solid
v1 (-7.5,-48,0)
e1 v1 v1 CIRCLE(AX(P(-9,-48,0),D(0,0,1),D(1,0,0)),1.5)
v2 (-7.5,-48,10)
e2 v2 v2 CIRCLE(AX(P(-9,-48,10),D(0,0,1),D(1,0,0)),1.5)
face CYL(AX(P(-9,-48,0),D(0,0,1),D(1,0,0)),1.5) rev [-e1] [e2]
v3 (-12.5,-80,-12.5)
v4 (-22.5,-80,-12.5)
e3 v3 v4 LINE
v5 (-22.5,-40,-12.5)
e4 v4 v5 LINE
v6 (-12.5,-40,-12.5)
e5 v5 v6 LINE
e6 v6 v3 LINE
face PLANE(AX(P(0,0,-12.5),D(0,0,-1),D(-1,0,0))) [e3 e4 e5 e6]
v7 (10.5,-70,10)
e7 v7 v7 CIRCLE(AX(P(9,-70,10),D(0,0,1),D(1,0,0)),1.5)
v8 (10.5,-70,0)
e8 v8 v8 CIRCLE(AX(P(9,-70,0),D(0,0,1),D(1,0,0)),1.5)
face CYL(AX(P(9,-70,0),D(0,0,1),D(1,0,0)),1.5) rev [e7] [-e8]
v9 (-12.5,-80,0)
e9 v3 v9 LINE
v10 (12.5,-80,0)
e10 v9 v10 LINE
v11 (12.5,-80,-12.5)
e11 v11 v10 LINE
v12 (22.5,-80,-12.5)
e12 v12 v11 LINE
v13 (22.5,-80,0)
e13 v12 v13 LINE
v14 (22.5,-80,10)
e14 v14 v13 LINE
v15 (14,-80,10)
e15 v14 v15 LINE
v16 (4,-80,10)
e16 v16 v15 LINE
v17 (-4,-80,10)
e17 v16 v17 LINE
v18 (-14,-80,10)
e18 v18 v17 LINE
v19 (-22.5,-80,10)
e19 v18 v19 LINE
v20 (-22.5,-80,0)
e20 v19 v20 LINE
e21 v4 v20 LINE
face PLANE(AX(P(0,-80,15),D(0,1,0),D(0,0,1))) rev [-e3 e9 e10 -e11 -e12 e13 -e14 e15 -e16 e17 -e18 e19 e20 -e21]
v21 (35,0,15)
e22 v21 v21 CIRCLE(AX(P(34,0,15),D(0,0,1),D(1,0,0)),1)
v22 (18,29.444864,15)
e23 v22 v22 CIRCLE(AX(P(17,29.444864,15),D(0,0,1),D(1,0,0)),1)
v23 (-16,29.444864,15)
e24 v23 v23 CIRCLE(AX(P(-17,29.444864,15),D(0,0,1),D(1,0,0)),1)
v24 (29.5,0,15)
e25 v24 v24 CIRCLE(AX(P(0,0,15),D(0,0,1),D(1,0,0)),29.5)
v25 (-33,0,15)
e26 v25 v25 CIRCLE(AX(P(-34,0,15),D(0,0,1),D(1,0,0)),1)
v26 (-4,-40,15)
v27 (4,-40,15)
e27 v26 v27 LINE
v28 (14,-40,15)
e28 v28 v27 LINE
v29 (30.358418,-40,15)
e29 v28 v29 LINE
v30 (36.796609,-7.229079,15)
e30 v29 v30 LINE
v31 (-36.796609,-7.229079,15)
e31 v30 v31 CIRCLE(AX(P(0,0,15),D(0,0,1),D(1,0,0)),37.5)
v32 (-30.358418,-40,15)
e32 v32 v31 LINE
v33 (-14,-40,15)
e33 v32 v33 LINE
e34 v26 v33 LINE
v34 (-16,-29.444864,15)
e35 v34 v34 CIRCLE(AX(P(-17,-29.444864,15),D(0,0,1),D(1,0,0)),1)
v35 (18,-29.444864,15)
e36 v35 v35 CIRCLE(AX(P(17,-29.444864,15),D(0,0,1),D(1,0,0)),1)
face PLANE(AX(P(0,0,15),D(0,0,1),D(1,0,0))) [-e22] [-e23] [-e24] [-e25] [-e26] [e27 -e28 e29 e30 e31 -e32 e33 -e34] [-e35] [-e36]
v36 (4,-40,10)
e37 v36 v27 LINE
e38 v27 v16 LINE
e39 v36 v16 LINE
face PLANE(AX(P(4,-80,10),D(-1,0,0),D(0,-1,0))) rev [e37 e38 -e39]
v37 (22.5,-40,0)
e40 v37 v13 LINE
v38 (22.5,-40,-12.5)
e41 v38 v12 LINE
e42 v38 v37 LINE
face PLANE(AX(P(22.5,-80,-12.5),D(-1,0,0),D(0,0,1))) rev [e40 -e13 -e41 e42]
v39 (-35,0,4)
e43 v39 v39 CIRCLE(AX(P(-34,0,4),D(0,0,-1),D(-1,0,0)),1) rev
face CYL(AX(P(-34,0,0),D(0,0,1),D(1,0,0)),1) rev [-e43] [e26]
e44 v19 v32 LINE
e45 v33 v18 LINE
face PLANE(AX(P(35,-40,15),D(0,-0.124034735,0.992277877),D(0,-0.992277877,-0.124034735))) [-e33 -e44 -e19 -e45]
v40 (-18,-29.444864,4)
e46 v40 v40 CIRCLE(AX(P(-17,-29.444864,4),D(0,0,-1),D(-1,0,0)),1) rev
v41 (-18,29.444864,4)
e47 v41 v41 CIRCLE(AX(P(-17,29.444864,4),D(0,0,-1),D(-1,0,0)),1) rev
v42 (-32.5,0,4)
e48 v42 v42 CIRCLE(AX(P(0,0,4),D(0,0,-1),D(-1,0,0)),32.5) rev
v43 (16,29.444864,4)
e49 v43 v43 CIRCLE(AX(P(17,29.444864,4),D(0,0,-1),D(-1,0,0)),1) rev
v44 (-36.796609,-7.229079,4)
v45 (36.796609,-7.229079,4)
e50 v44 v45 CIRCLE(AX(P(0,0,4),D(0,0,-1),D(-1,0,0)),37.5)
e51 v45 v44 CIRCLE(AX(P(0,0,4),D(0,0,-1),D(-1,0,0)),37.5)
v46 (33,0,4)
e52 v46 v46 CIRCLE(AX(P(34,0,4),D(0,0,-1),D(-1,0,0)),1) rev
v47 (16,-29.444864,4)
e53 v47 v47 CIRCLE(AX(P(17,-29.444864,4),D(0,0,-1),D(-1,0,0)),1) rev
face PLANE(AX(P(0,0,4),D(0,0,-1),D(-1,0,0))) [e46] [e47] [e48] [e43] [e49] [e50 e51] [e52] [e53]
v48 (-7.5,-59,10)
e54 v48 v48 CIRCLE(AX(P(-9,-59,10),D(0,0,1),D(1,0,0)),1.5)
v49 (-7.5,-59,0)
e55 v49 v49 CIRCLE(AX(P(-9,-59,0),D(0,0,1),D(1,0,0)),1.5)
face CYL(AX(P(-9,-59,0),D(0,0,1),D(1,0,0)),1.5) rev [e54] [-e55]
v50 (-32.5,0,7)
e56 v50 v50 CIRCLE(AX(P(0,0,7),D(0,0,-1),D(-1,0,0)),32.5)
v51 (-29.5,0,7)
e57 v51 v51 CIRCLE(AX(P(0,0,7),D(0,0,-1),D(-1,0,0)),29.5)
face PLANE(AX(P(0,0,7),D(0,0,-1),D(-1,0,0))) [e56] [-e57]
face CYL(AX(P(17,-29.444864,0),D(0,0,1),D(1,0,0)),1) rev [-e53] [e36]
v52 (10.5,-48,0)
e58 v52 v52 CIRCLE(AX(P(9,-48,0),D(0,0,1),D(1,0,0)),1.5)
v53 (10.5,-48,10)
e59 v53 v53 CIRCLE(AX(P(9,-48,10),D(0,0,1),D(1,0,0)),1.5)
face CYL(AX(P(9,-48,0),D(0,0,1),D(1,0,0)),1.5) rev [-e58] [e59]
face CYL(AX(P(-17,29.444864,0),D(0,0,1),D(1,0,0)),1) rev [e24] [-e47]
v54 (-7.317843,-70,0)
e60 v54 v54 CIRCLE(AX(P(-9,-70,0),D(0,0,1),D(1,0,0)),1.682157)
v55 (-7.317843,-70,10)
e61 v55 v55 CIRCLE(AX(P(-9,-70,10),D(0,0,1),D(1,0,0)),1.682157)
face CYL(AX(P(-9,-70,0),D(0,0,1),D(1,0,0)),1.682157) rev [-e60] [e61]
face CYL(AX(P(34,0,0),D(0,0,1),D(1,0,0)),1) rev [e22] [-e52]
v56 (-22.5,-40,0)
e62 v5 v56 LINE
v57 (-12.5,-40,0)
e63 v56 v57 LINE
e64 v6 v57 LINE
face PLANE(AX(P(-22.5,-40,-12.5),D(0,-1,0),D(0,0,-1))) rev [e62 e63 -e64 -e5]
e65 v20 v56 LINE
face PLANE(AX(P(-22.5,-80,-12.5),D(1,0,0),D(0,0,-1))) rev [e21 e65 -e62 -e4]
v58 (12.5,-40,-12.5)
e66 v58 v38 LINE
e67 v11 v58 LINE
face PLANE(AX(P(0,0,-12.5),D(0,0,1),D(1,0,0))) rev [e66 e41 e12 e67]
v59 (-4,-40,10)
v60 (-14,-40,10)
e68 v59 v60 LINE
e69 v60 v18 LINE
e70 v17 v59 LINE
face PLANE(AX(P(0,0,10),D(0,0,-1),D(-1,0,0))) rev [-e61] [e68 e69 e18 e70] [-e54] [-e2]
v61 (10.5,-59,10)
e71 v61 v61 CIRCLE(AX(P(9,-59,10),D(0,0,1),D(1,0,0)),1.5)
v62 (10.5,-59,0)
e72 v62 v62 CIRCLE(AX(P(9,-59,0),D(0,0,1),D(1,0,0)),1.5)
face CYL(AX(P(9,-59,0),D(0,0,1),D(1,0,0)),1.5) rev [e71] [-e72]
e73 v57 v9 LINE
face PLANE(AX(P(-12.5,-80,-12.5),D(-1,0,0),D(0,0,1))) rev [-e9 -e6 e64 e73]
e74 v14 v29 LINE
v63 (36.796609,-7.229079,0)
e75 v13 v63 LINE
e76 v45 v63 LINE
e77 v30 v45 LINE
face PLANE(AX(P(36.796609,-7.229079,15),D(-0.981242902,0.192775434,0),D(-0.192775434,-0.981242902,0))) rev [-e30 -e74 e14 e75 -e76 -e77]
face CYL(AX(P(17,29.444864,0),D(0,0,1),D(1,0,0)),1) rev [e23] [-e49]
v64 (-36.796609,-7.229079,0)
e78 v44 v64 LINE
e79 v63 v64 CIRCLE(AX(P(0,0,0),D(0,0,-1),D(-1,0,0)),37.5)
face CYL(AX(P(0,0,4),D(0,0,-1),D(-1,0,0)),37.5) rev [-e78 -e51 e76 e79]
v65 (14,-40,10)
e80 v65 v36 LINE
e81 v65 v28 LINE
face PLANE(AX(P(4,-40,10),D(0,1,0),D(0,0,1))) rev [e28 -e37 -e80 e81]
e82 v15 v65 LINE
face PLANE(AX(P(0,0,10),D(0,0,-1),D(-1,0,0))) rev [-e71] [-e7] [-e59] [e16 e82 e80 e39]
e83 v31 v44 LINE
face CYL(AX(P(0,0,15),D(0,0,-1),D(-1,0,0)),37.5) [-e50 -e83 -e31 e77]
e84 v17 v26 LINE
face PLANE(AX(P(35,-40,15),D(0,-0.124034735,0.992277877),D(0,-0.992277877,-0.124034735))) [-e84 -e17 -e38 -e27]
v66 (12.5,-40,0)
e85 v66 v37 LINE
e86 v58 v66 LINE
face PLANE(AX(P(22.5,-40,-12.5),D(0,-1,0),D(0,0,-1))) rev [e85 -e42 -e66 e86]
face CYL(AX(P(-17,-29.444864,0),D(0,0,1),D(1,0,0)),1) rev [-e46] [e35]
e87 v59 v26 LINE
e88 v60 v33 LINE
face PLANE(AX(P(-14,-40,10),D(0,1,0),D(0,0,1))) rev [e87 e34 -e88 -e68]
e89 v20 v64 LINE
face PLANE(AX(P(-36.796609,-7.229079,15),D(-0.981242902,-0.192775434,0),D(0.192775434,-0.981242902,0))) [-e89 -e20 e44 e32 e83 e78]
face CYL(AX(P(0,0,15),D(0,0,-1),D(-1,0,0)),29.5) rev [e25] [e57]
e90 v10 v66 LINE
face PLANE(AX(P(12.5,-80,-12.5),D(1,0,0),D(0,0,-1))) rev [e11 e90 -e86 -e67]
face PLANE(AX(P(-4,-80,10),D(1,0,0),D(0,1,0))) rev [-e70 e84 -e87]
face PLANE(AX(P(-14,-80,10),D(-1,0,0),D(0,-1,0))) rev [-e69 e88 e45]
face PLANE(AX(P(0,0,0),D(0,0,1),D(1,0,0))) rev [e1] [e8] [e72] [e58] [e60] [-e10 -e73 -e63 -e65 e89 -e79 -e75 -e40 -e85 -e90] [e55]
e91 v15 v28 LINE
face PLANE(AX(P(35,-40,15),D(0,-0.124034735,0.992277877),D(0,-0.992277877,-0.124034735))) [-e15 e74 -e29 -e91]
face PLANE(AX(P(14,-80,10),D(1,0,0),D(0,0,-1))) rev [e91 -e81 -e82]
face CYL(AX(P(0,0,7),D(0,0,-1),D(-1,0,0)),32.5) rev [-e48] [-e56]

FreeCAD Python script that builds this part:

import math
import FreeCAD as App
import Part
import Sketcher

V = App.Vector
Q = App.Units.Quantity

doc = App.newDocument("Part")
body = doc.addObject("PartDesign::Body", "Body")

sketch1 = doc.addObject("Sketcher::SketchObject", "Sketch")
body.addObject(sketch1)
sketch1.AttachmentSupport = (doc.XY_Plane, [""])
sketch1.MapMode = "FlatFace"
sketch1.addGeometry([
    Part.LineSegment(V(-37, -7, 0), V(-22, -80, 0)),
    Part.LineSegment(V(-22, -80, 0), V(22, -80, 0)),
    Part.LineSegment(V(22, -80, 0), V(37, -7, 0)),
    Part.ArcOfCircle(Part.Circle(V(0, 0, 0), V(0, 0, 1), 38), math.radians(-11), math.radians(191)),
    Part.Circle(V(0, 0, 0), V(0, 0, 1), 30),
], False)
sketch1.addConstraint([
    Sketcher.Constraint("Coincident", 0, 2, 1, 1),
    Sketcher.Constraint("Coincident", 1, 2, 2, 1),
    Sketcher.Constraint("Tangent", 2, 2, 3, 1),
    Sketcher.Constraint("Tangent", 3, 2, 0, 1),
    Sketcher.Constraint("Horizontal", 1),
    Sketcher.Constraint("Coincident", 3, 3, -1, 1),
    Sketcher.Constraint("Coincident", 4, 3, -1, 1),
    Sketcher.Constraint("Horizontal", 2, 2, 3, 2),
    Sketcher.Constraint("Diameter", 4, Q("59 mm")),
    Sketcher.Constraint("Radius", 3, Q("37.5 mm")),
    Sketcher.Constraint("DistanceX", 1, 1, 1, 2, Q("45 mm")),
    Sketcher.Constraint("DistanceY", 0, 2, -1, 1, Q("80 mm")),
])
pad1 = doc.addObject("PartDesign::Pad", "Pad")
body.addObject(pad1)
pad1.Profile = sketch1
pad1.Length = 15

sketch2 = doc.addObject("Sketcher::SketchObject", "Sketch001")
body.addObject(sketch2)
sketch2.AttachmentSupport = (doc.XY_Plane, [""])
sketch2.MapMode = "FlatFace"
sketch2.addGeometry([
    Part.Circle(V(0, 0, 0), V(0, 0, 1), 32),
    Part.Circle(V(0, 0, 0), V(0, 0, 1), 28),
], False)
sketch2.addConstraint([
    Sketcher.Constraint("Coincident", 0, 3, -1, 1),
    Sketcher.Constraint("Coincident", 1, 3, -1, 1),
    Sketcher.Constraint("Diameter", 0, Q("65 mm")),
    Sketcher.Constraint("Diameter", 1, Q("55 mm")),
])
pocket1 = doc.addObject("PartDesign::Pocket", "Pocket")
body.addObject(pocket1)
pocket1.Profile = sketch2
pocket1.Length = 7
pocket1.Reversed = True

sketch3 = doc.addObject("Sketcher::SketchObject", "Sketch002")
body.addObject(sketch3)
sketch3.AttachmentSupport = (doc.XY_Plane, [""])
sketch3.MapMode = "FlatFace"
sketch3.AttachmentOffset = App.Placement(V(0, 0, 15), App.Rotation())
sketch3.addGeometry([
    Part.Circle(V(17, 29.4, 0), V(0, 0, 1), 1),
    Part.Circle(V(34, 0, 0), V(0, 0, 1), 1),
    Part.Circle(V(17, -29.4, 0), V(0, 0, 1), 1),
    Part.Circle(V(-17, -29.4, 0), V(0, 0, 1), 1),
    Part.Circle(V(-34, 0, 0), V(0, 0, 1), 1),
    Part.Circle(V(-17, 29.4, 0), V(0, 0, 1), 1),
], False)
sketch3.addConstraint([
    Sketcher.Constraint("Equal", 0, 1),
    Sketcher.Constraint("Equal", 1, 2),
    Sketcher.Constraint("Equal", 2, 3),
    Sketcher.Constraint("Equal", 3, 4),
    Sketcher.Constraint("Equal", 4, 5),
    Sketcher.Constraint("Symmetric", 0, 3, 3, 3, -1, 1),
    Sketcher.Constraint("Symmetric", 1, 3, 4, 3, -1, 1),
    Sketcher.Constraint("Symmetric", 2, 3, 5, 3, -1, 1),
    Sketcher.Constraint("Symmetric", 2, 3, 3, 3, -2),
    Sketcher.Constraint("PointOnObject", 1, 3, -1),
    Sketcher.Constraint("Diameter", 0, Q("2 mm")),
    Sketcher.Constraint("DistanceX", -1, 1, 0, 3, Q("17 mm")),
    Sketcher.Constraint("DistanceX", -1, 1, 1, 3, Q("34 mm")),
    Sketcher.Constraint("DistanceY", -1, 1, 0, 3, Q("29.444864 mm")),
])
pocket2 = doc.addObject("PartDesign::Pocket", "Pocket001")
body.addObject(pocket2)
pocket2.Profile = sketch3
pocket2.Length = 15

sketch4 = doc.addObject("Sketcher::SketchObject", "Sketch003")
body.addObject(sketch4)
sketch4.AttachmentSupport = (doc.XY_Plane, [""])
sketch4.MapMode = "FlatFace"
sketch4.addGeometry(Part.Circle(V(0, 0, 0), V(0, 0, 1), 38), False)
sketch4.addConstraint([
    Sketcher.Constraint("Coincident", 0, 3, -1, 1),
    Sketcher.Constraint("Diameter", 0, Q("75 mm")),
])
pocket3 = doc.addObject("PartDesign::Pocket", "Pocket002")
body.addObject(pocket3)
pocket3.Profile = sketch4
pocket3.Length = 4
pocket3.Reversed = True

sketch5 = doc.addObject("Sketcher::SketchObject", "Sketch004")
body.addObject(sketch5)
sketch5.AttachmentSupport = (doc.YZ_Plane, [""])
sketch5.MapMode = "FlatFace"
sketch5.addGeometry([
    Part.LineSegment(V(-40, 15, 0), V(-80, 15, 0)),
    Part.LineSegment(V(-80, 15, 0), V(-80, 10, 0)),
    Part.LineSegment(V(-80, 10, 0), V(-40, 15, 0)),
], False)
sketch5.addConstraint([
    Sketcher.Constraint("Coincident", 0, 2, 1, 1),
    Sketcher.Constraint("Coincident", 1, 2, 2, 1),
    Sketcher.Constraint("Coincident", 2, 2, 0, 1),
    Sketcher.Constraint("Horizontal", 0),
    Sketcher.Constraint("Vertical", 1),
    Sketcher.Constraint("DistanceX", 0, 2, 0, 1, Q("40 mm")),
    Sketcher.Constraint("DistanceY", 1, 2, 1, 1, Q("5 mm")),
    Sketcher.Constraint("DistanceX", 0, 2, -1, 1, Q("80 mm")),
    Sketcher.Constraint("DistanceY", -1, 1, 0, 2, Q("15 mm")),
])
pocket4 = doc.addObject("PartDesign::Pocket", "Pocket003")
body.addObject(pocket4)
pocket4.Profile = sketch5
pocket4.Type = "ThroughAll"
pocket4.Midplane = True

sketch6 = doc.addObject("Sketcher::SketchObject", "Sketch005")
body.addObject(sketch6)
sketch6.AttachmentSupport = (doc.XY_Plane, [""])
sketch6.MapMode = "FlatFace"
sketch6.AttachmentOffset = App.Placement(V(0, 0, 15), App.Rotation())
sketch6.addGeometry([
    Part.LineSegment(V(-14, -40, 0), V(-14, -80, 0)),
    Part.LineSegment(V(-14, -80, 0), V(-4, -80, 0)),
    Part.LineSegment(V(-4, -80, 0), V(-4, -40, 0)),
    Part.LineSegment(V(-4, -40, 0), V(-14, -40, 0)),
    Part.LineSegment(V(4, -40, 0), V(4, -80, 0)),
    Part.LineSegment(V(4, -80, 0), V(14, -80, 0)),
    Part.LineSegment(V(14, -80, 0), V(14, -40, 0)),
    Part.LineSegment(V(14, -40, 0), V(4, -40, 0)),
], False)
sketch6.addConstraint([
    Sketcher.Constraint("Coincident", 0, 2, 1, 1),
    Sketcher.Constraint("Coincident", 1, 2, 2, 1),
    Sketcher.Constraint("Coincident", 2, 2, 3, 1),
    Sketcher.Constraint("Coincident", 3, 2, 0, 1),
    Sketcher.Constraint("Coincident", 4, 2, 5, 1),
    Sketcher.Constraint("Coincident", 5, 2, 6, 1),
    Sketcher.Constraint("Coincident", 6, 2, 7, 1),
    Sketcher.Constraint("Coincident", 7, 2, 4, 1),
    Sketcher.Constraint("Vertical", 0),
    Sketcher.Constraint("Horizontal", 1),
    Sketcher.Constraint("Vertical", 2),
    Sketcher.Constraint("Horizontal", 3),
    Sketcher.Constraint("Vertical", 4),
    Sketcher.Constraint("Horizontal", 5),
    Sketcher.Constraint("Vertical", 6),
    Sketcher.Constraint("Horizontal", 7),
    Sketcher.Constraint("Symmetric", 1, 2, 4, 2, -2),
    Sketcher.Constraint("Symmetric", 3, 2, 6, 2, -2),
    Sketcher.Constraint("DistanceX", 1, 1, 1, 2, Q("10 mm")),
    Sketcher.Constraint("DistanceY", 0, 2, 0, 1, Q("40 mm")),
    Sketcher.Constraint("DistanceX", 0, 2, -1, 1, Q("14 mm")),
    Sketcher.Constraint("DistanceY", 0, 2, -1, 1, Q("80 mm")),
])
pocket5 = doc.addObject("PartDesign::Pocket", "Pocket004")
body.addObject(pocket5)
pocket5.Profile = sketch6
pocket5.Length = 5

sketch7 = doc.addObject("Sketcher::SketchObject", "Sketch006")
body.addObject(sketch7)
sketch7.AttachmentSupport = (doc.XY_Plane, [""])
sketch7.MapMode = "FlatFace"
sketch7.AttachmentOffset = App.Placement(V(0, 0, 10), App.Rotation())
sketch7.addGeometry([
    Part.Circle(V(-9, -48, 0), V(0, 0, 1), 1.5),
    Part.Circle(V(-9, -59, 0), V(0, 0, 1), 1.5),
    Part.Circle(V(-9, -70, 0), V(0, 0, 1), 1.7),
    Part.Circle(V(9, -70, 0), V(0, 0, 1), 1.5),
    Part.Circle(V(9, -59, 0), V(0, 0, 1), 1.5),
    Part.Circle(V(9, -48, 0), V(0, 0, 1), 1.5),
], False)
sketch7.addConstraint([
    Sketcher.Constraint("Equal", 0, 1),
    Sketcher.Constraint("Equal", 1, 3),
    Sketcher.Constraint("Equal", 3, 4),
    Sketcher.Constraint("Equal", 4, 5),
    Sketcher.Constraint("Symmetric", 2, 3, 3, 3, -2),
    Sketcher.Constraint("Symmetric", 1, 3, 4, 3, -2),
    Sketcher.Constraint("Symmetric", 0, 3, 5, 3, -2),
    Sketcher.Constraint("Vertical", 0, 3, 1, 3),
    Sketcher.Constraint("Vertical", 1, 3, 2, 3),
    Sketcher.Constraint("Diameter", 0, Q("3 mm")),
    Sketcher.Constraint("DistanceX", 0, 3, -1, 1, Q("9 mm")),
    Sketcher.Constraint("DistanceY", 0, 3, -1, 1, Q("48 mm")),
    Sketcher.Constraint("DistanceY", 1, 3, -1, 1, Q("59 mm")),
    Sketcher.Constraint("DistanceY", 2, 3, -1, 1, Q("70 mm")),
    Sketcher.Constraint("Diameter", 2, Q("3.364314 mm")),
])
pocket6 = doc.addObject("PartDesign::Pocket", "Pocket005")
body.addObject(pocket6)
pocket6.Profile = sketch7
pocket6.Length = 10

sketch8 = doc.addObject("Sketcher::SketchObject", "Sketch007")
body.addObject(sketch8)
sketch8.AttachmentSupport = (doc.XY_Plane, [""])
sketch8.MapMode = "FlatFace"
sketch8.addGeometry([
    Part.LineSegment(V(22, -40, 0), V(22, -80, 0)),
    Part.LineSegment(V(22, -80, 0), V(12, -80, 0)),
    Part.LineSegment(V(12, -80, 0), V(12, -40, 0)),
    Part.LineSegment(V(12, -40, 0), V(22, -40, 0)),
    Part.LineSegment(V(-12, -40, 0), V(-12, -80, 0)),
    Part.LineSegment(V(-12, -80, 0), V(-22, -80, 0)),
    Part.LineSegment(V(-22, -80, 0), V(-22, -40, 0)),
    Part.LineSegment(V(-22, -40, 0), V(-12, -40, 0)),
], False)
sketch8.addConstraint([
    Sketcher.Constraint("Coincident", 0, 2, 1, 1),
    Sketcher.Constraint("Coincident", 1, 2, 2, 1),
    Sketcher.Constraint("Coincident", 2, 2, 3, 1),
    Sketcher.Constraint("Coincident", 3, 2, 0, 1),
    Sketcher.Constraint("Coincident", 4, 2, 5, 1),
    Sketcher.Constraint("Coincident", 5, 2, 6, 1),
    Sketcher.Constraint("Coincident", 6, 2, 7, 1),
    Sketcher.Constraint("Coincident", 7, 2, 4, 1),
    Sketcher.Constraint("Vertical", 0),
    Sketcher.Constraint("Horizontal", 1),
    Sketcher.Constraint("Vertical", 2),
    Sketcher.Constraint("Horizontal", 3),
    Sketcher.Constraint("Vertical", 4),
    Sketcher.Constraint("Horizontal", 5),
    Sketcher.Constraint("Vertical", 6),
    Sketcher.Constraint("Horizontal", 7),
    Sketcher.Constraint("Symmetric", 1, 2, 4, 2, -2),
    Sketcher.Constraint("Symmetric", 3, 2, 6, 2, -2),
    Sketcher.Constraint("DistanceX", 1, 2, 1, 1, Q("10 mm")),
    Sketcher.Constraint("DistanceY", 0, 2, 0, 1, Q("40 mm")),
    Sketcher.Constraint("DistanceY", 0, 2, -1, 1, Q("80 mm")),
    Sketcher.Constraint("DistanceX", 4, 2, 1, 2, Q("25 mm")),
])
pad2 = doc.addObject("PartDesign::Pad", "Pad001")
body.addObject(pad2)
pad2.Profile = sketch8
pad2.Length = 12.5
pad2.Reversed = True

doc.recompute()
